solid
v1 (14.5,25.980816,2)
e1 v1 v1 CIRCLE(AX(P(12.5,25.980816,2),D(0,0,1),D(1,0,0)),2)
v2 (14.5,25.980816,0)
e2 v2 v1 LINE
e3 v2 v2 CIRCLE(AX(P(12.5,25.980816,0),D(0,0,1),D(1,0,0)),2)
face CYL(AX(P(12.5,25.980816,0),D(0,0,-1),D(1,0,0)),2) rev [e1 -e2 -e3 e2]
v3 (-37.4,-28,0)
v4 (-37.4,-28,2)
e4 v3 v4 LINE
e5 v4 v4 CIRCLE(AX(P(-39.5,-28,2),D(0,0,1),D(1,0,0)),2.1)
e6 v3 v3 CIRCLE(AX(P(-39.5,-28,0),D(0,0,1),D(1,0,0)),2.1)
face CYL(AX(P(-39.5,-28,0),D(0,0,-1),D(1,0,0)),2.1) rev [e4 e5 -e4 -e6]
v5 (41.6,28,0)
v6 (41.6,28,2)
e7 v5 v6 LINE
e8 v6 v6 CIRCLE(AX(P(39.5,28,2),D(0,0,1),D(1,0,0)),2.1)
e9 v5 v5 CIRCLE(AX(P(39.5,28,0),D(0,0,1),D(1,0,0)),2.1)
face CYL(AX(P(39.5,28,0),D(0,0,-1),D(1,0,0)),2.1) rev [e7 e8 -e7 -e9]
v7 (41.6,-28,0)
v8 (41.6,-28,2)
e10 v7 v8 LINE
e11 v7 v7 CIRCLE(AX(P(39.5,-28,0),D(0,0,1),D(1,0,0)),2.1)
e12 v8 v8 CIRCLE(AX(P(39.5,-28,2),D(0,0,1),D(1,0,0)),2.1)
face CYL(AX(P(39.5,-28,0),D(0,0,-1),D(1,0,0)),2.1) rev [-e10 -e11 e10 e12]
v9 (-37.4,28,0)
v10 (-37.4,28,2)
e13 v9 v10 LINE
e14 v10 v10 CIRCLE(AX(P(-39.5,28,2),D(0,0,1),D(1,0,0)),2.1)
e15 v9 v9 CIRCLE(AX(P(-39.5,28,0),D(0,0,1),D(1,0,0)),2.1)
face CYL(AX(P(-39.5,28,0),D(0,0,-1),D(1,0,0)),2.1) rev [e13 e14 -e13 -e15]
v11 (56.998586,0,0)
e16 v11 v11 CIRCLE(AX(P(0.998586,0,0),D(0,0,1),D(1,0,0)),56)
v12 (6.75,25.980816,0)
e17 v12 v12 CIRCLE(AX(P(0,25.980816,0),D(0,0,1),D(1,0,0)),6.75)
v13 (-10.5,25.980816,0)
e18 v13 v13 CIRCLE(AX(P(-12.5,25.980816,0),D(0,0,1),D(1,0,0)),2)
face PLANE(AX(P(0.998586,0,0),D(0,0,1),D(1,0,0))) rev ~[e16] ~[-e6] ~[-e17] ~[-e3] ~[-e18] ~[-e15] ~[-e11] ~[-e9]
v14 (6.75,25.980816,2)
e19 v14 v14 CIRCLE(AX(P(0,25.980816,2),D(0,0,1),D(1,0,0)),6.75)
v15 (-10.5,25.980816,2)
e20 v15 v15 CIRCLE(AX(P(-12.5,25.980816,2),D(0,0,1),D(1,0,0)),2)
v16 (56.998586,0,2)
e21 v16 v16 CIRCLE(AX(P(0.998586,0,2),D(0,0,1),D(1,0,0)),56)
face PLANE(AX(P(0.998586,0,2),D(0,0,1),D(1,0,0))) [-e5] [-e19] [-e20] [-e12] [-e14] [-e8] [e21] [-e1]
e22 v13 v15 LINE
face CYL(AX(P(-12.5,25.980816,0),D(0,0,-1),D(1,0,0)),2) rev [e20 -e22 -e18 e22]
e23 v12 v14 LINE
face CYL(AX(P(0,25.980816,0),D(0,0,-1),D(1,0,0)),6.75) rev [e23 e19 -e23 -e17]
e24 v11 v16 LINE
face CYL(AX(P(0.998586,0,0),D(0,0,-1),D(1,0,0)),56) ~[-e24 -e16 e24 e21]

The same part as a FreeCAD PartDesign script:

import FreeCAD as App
import Part
import Sketcher

V = App.Vector

doc = App.newDocument("Part")
params = doc.addObject("Spreadsheet::Sheet", "Params")
for row, (alias, value) in enumerate([
    ("sketch1_diameter", "112 mm"),
    ("sketch1_diameter2", "4 mm"),
    ("sketch1_diameter3", "4.2 mm"),
    ("sketch1_diameter4", "13.5 mm"),
    ("pad1_length", "2 mm"),
], start=1):
    params.set(f"A{row}", alias)
    params.set(f"B{row}", "=" + value)
    params.setAlias(f"B{row}", alias)

body = doc.addObject("PartDesign::Body", "Body")

# Sketch on XY plane
sketch1 = body.newObject("Sketcher::SketchObject", "Sketch")
sketch1.AttachmentSupport = (doc.getObject("XY_Plane"), [""])
sketch1.MapMode = "FlatFace"
sketch1.addGeometry([
    Part.Circle(V(1, 0, 0), V(0, 0, 1), 56),  # 0
    Part.Circle(V(-39.5, -28, 0), V(0, 0, 1), 2.1),  # 1
    Part.Circle(V(39.5, -28, 0), V(0, 0, 1), 2.1),  # 2
    Part.Circle(V(-39.5, 28, 0), V(0, 0, 1), 2.1),  # 3
    Part.Circle(V(-12.5, 26, 0), V(0, 0, 1), 2),  # 4
    Part.Circle(V(0, 26, 0), V(0, 0, 1), 6.8),  # 5
    Part.Circle(V(12.5, 26, 0), V(0, 0, 1), 2),  # 6
    Part.Circle(V(39.5, 28, 0), V(0, 0, 1), 2.1),  # 7
], False)
sketch1.addConstraint([
    Sketcher.Constraint("Equal", 1, 2),
    Sketcher.Constraint("Equal", 2, 3),
    Sketcher.Constraint("Equal", 4, 6),
    Sketcher.Constraint("Equal", 3, 7),
    Sketcher.Constraint("Symmetric", 2, 3, 3, 3, -1, 1),
    Sketcher.Constraint("Symmetric", 1, 3, 7, 3, -1, 1),
    Sketcher.Constraint("Symmetric", 1, 3, 2, 3, -2),
    Sketcher.Constraint("Symmetric", 4, 3, 6, 3, -2),
    Sketcher.Constraint("PointOnObject", 0, 3, -1),
    Sketcher.Constraint("PointOnObject", 5, 3, -2),
    Sketcher.Constraint("Horizontal", 4, 3, 5, 3),
    Sketcher.Constraint("Diameter", 0, 112.0),
    Sketcher.Constraint("Diameter", 4, 4.0),
    Sketcher.Constraint("Diameter", 1, 4.2),
    Sketcher.Constraint("Diameter", 5, 13.5),
    Sketcher.Constraint("DistanceY", 1, 3, -1, 1, 28.0),
    Sketcher.Constraint("DistanceX", 1, 3, 2, 3, 79.0),
    Sketcher.Constraint("DistanceX", 3, 3, 4, 3, 27.0),
    Sketcher.Constraint("DistanceX", -1, 1, 0, 3, 0.998586),
    Sketcher.Constraint("DistanceY", -1, 1, 4, 3, 25.980816),
])
sketch1.setExpression("Constraints[11]", "Params.sketch1_diameter")
sketch1.setExpression("Constraints[12]", "Params.sketch1_diameter2")
sketch1.setExpression("Constraints[13]", "Params.sketch1_diameter3")
sketch1.setExpression("Constraints[14]", "Params.sketch1_diameter4")
pad1 = body.newObject("PartDesign::Pad", "Pad")
pad1.Profile = sketch1
pad1.setExpression("Length", "Params.pad1_length")

doc.recompute()
